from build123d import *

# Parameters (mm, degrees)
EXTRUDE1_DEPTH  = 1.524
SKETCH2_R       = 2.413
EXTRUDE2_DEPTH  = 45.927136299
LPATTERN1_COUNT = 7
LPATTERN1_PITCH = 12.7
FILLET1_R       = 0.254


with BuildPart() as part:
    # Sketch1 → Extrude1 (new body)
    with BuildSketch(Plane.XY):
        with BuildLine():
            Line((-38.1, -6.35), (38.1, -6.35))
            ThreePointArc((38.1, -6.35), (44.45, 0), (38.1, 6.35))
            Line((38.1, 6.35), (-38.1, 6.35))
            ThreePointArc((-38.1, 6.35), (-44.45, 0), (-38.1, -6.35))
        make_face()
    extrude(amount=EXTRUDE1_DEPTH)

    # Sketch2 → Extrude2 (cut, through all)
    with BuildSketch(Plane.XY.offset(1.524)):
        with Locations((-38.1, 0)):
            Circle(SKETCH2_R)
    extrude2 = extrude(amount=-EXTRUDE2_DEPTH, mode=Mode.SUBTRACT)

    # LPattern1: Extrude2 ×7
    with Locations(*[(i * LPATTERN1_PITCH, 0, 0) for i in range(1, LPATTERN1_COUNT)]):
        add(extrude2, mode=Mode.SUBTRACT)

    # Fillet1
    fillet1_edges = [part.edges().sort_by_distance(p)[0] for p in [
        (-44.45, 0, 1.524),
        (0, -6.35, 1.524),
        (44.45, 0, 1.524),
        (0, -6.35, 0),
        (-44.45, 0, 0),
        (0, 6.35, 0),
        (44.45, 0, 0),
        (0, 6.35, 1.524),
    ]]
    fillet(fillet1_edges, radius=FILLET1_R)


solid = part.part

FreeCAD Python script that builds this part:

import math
import FreeCAD as App
import Part
import Sketcher
Q = App.Units.Quantity


def edges_at(feature, points):
    """Names of the edges that pass closest to the given points."""
    edges = feature.Shape.Edges
    near = lambda p: min(range(len(edges)), key=lambda i: edges[i].distToShape(Part.Vertex(*p))[0])
    return sorted({f"Edge{near(p) + 1}" for p in points})

doc = App.newDocument("Part")
params = doc.addObject("Spreadsheet::Sheet", "Params")
for row, (alias, value) in enumerate([
    ("sketch1_width", "3 in"),
    ("sketch1_radius", "0.25 in"),
    ("pad1_length", "0.06 in"),
    ("sketch2_diameter", "0.19 in"),
    ("linearpattern_pitch", "0.5 in"),
    ("fillet_radius", "0.01 in"),
], start=1):
    params.set(f"A{row}", alias)
    params.set(f"B{row}", "=" + value)
    params.setAlias(f"B{row}", alias)

body = doc.addObject("PartDesign::Body", "Body")

# Sketch on XY plane
sketch1 = body.newObject("Sketcher::SketchObject", "Sketch")
sketch1.AttachmentSupport = (doc.getObject("XY_Plane"), [""])
sketch1.MapMode = "FlatFace"
sketch1.addGeometry([
    Part.LineSegment(App.Vector(-38, -6, 0), App.Vector(38, -6, 0)),
    Part.ArcOfCircle(Part.Circle(App.Vector(38, 0, 0), App.Vector(0, 0, 1), 6), math.radians(-90), math.radians(90)),
    Part.LineSegment(App.Vector(38, 6, 0), App.Vector(-38, 6, 0)),
    Part.ArcOfCircle(Part.Circle(App.Vector(-38, 0, 0), App.Vector(0, 0, 1), 6), math.radians(90), math.radians(270)),
], False)
sketch1.addConstraint([
    Sketcher.Constraint("Tangent", 0, 2, 1, 1),
    Sketcher.Constraint("Tangent", 1, 2, 2, 1),
    Sketcher.Constraint("Tangent", 2, 2, 3, 1),
    Sketcher.Constraint("Tangent", 3, 2, 0, 1),
    Sketcher.Constraint("Horizontal", 0),
    Sketcher.Constraint("Horizontal", 2),
    Sketcher.Constraint("Symmetric", 1, 3, 3, 3, -1, 1),
    Sketcher.Constraint("DistanceX", 0, 1, 0, 2, Q("3 in")),
    Sketcher.Constraint("Radius", 1, Q("0.25 in")),
])
sketch1.setExpression("Constraints[7]", "Params.sketch1_width")
sketch1.setExpression("Constraints[8]", "Params.sketch1_radius")
pad1 = body.newObject("PartDesign::Pad", "Pad")
pad1.Profile = sketch1
pad1.setExpression("Length", "Params.pad1_length")

# Sketch on XY plane
sketch2 = body.newObject("Sketcher::SketchObject", "Sketch001")
sketch2.AttachmentSupport = (doc.getObject("XY_Plane"), [""])
sketch2.MapMode = "FlatFace"
sketch2.AttachmentOffset = App.Placement(App.Vector(0, 0, 0.06 * 25.4), App.Rotation())
sketch2.addGeometry(Part.Circle(App.Vector(-38.1, 0, 0), App.Vector(0, 0, 1), 2.4), False)
sketch2.addConstraint([
    Sketcher.Constraint("PointOnObject", 0, 3, -1),
    Sketcher.Constraint("Diameter", 0, Q("0.19 in")),
    Sketcher.Constraint("DistanceX", 0, 3, -1, 1, Q("1.5 in")),
])
sketch2.setExpression("Constraints[1]", "Params.sketch2_diameter")
pocket1 = body.newObject("PartDesign::Pocket", "Pocket")
pocket1.Profile = sketch2
pocket1.Type = "ThroughAll"
doc.recompute()

linearpattern = body.newObject("PartDesign::LinearPattern", "LinearPattern")
linearpattern.Originals = [pocket1]
linearpattern.Direction = (doc.getObject("X_Axis"), [""])
linearpattern.Mode = "offset"
linearpattern.setExpression("Offset", "Params.linearpattern_pitch")
linearpattern.Occurrences = 7
body.Tip = linearpattern
doc.recompute()

fillet = body.newObject("PartDesign::Fillet", "Fillet")
fillet.Base = (linearpattern, edges_at(linearpattern, [
    (-44.45, 0, 1.524),
    (0, -6.35, 1.524),
    (44.45, 0, 1.524),
    (0, -6.35, 0),
    (-44.45, 0, 0),
    (0, 6.35, 0),
    (44.45, 0, 0),
    (0, 6.35, 1.524),
]))
fillet.setExpression("Radius", "Params.fillet_radius")

doc.recompute()
